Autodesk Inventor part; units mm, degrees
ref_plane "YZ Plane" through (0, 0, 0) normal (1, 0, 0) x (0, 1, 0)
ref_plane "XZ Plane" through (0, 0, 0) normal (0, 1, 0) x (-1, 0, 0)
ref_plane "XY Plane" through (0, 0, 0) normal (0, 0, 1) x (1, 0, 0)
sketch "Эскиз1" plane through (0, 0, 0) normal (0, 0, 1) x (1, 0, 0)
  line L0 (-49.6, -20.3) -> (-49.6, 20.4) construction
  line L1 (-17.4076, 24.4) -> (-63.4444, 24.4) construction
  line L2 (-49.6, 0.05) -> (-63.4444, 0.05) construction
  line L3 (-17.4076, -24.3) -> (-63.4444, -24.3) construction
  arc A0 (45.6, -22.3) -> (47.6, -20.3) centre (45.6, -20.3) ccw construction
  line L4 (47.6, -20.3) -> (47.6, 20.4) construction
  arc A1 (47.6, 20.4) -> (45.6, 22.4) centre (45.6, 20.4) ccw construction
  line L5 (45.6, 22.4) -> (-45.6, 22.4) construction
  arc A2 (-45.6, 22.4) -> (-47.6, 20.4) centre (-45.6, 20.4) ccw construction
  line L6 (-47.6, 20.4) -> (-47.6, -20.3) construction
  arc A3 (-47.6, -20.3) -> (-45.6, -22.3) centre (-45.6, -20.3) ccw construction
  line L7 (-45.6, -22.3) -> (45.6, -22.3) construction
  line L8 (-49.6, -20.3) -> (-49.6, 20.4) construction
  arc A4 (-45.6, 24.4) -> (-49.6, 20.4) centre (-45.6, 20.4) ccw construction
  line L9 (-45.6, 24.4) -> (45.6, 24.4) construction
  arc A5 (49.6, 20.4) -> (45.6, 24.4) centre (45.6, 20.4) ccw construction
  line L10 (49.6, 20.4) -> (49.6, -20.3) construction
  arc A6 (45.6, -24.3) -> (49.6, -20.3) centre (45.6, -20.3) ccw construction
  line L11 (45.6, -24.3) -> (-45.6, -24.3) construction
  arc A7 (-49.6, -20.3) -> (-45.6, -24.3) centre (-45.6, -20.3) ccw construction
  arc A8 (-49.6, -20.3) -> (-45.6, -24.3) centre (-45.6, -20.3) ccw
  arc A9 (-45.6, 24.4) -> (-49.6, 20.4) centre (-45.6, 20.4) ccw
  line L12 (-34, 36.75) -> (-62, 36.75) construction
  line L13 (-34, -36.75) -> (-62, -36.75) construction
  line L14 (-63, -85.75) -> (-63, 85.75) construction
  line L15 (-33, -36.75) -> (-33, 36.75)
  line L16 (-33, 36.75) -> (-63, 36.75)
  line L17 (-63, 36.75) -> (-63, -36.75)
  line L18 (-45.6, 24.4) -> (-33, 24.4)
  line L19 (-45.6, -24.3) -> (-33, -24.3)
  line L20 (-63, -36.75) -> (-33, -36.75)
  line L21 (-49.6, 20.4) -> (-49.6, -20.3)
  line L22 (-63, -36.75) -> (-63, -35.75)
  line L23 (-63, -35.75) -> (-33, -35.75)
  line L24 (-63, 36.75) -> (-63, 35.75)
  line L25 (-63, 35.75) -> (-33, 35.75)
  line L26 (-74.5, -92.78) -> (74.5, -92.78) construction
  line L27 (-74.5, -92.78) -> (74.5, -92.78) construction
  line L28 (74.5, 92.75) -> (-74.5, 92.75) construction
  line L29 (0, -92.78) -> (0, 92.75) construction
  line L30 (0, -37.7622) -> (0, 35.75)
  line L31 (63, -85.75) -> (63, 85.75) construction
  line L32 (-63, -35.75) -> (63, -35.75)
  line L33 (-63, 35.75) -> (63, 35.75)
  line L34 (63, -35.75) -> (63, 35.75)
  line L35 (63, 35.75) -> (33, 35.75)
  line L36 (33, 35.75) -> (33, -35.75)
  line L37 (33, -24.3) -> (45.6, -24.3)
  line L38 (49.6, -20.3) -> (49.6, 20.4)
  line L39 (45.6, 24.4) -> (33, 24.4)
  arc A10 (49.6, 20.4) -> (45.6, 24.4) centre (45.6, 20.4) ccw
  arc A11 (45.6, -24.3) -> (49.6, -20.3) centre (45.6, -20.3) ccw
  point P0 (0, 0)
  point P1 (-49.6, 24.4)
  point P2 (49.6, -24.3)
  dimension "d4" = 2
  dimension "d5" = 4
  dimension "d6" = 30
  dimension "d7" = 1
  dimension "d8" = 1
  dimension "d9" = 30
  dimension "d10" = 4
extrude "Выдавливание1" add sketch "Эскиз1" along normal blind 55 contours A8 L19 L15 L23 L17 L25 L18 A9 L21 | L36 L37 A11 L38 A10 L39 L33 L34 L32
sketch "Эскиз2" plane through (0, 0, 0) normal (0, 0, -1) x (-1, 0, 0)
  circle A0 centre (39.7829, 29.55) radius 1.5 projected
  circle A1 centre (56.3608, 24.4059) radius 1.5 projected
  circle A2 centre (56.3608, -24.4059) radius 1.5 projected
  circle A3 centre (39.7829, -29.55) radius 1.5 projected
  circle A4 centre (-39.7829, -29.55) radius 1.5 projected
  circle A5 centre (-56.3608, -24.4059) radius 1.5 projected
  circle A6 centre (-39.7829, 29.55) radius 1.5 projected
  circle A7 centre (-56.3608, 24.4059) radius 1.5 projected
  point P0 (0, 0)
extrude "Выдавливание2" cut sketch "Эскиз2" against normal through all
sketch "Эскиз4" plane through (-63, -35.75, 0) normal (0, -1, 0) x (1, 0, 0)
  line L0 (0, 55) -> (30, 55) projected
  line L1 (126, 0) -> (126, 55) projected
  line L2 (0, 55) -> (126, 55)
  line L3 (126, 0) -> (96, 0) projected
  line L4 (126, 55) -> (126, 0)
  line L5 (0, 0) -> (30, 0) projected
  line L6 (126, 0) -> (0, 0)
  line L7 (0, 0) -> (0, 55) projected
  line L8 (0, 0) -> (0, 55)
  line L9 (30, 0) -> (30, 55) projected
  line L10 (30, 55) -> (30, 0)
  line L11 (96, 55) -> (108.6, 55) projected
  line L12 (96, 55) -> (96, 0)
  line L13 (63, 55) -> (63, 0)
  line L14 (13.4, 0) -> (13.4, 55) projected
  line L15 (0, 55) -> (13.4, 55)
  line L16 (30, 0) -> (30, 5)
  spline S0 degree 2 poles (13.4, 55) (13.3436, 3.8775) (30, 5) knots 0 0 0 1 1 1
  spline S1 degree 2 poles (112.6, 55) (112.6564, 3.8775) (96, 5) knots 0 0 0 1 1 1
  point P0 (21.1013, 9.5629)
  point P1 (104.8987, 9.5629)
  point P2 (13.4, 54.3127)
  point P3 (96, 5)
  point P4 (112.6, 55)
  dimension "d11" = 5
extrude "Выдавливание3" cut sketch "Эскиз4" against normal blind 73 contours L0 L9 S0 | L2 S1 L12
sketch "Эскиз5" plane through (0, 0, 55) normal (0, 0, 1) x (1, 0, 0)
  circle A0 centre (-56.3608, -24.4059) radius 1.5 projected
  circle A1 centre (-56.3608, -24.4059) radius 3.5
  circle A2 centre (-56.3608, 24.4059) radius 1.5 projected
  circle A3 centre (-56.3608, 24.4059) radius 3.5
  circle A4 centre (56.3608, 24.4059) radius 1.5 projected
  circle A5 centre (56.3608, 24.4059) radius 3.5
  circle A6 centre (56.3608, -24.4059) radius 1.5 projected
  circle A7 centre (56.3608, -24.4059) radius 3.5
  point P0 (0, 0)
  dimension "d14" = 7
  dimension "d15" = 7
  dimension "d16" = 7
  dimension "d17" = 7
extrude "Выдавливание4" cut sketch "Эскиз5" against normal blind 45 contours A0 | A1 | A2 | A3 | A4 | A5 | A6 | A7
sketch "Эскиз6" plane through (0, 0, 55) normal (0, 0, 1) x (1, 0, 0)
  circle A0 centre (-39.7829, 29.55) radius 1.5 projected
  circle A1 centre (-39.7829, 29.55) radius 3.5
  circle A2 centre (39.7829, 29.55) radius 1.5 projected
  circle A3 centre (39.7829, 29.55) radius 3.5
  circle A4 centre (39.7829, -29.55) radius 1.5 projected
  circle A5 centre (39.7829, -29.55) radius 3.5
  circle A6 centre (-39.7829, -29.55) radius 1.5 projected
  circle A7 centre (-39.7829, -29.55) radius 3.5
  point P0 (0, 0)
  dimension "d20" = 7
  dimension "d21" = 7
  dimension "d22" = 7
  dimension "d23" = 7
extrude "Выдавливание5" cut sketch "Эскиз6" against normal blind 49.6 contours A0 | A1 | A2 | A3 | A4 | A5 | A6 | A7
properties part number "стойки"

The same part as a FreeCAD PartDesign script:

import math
import FreeCAD as App
import Part
import Sketcher

doc = App.newDocument("Part")
body = doc.addObject("PartDesign::Body", "Body")
body.AllowCompound = True

sketch1 = doc.addObject("Sketcher::SketchObject", "Sketch")
body.addObject(sketch1)
sketch1.AttachmentSupport = (doc.XY_Plane, [""])
sketch1.MapMode = "FlatFace"
sketch1.addGeometry([
    Part.ArcOfCircle(Part.Circle(App.Vector(-45.6, -20.3, 0), App.Vector(0, 0, 1), 4), math.radians(180), math.radians(270)),
    Part.LineSegment(App.Vector(-49.6, -20.3, 0), App.Vector(-49.6, 20.4, 0)),
    Part.ArcOfCircle(Part.Circle(App.Vector(-45.6, 20.4, 0), App.Vector(0, 0, 1), 4), math.radians(90), math.radians(180)),
    Part.LineSegment(App.Vector(-45.6, 24.4, 0), App.Vector(-33, 24.4, 0)),
    Part.LineSegment(App.Vector(-33, 24.4, 0), App.Vector(-33, 35.8, 0)),
    Part.LineSegment(App.Vector(-33, 35.8, 0), App.Vector(-63, 35.8, 0)),
    Part.LineSegment(App.Vector(-63, 35.8, 0), App.Vector(-63, -35.8, 0)),
    Part.LineSegment(App.Vector(-63, -35.8, 0), App.Vector(-33, -35.8, 0)),
    Part.LineSegment(App.Vector(-33, -35.8, 0), App.Vector(-33, -24.3, 0)),
    Part.LineSegment(App.Vector(-33, -24.3, 0), App.Vector(-45.6, -24.3, 0)),
    Part.LineSegment(App.Vector(33, -24.3, 0), App.Vector(33, -35.8, 0)),
    Part.LineSegment(App.Vector(33, -35.8, 0), App.Vector(63, -35.8, 0)),
    Part.LineSegment(App.Vector(63, -35.8, 0), App.Vector(63, 35.8, 0)),
    Part.LineSegment(App.Vector(63, 35.8, 0), App.Vector(33, 35.8, 0)),
    Part.LineSegment(App.Vector(33, 35.8, 0), App.Vector(33, 24.4, 0)),
    Part.LineSegment(App.Vector(33, 24.4, 0), App.Vector(45.6, 24.4, 0)),
    Part.ArcOfCircle(Part.Circle(App.Vector(45.6, 20.4, 0), App.Vector(0, 0, 1), 4), math.radians(0), math.radians(90)),
    Part.LineSegment(App.Vector(49.6, 20.4, 0), App.Vector(49.6, -20.3, 0)),
    Part.ArcOfCircle(Part.Circle(App.Vector(45.6, -20.3, 0), App.Vector(0, 0, 1), 4), math.radians(-90), math.radians(0)),
    Part.LineSegment(App.Vector(45.6, -24.3, 0), App.Vector(33, -24.3, 0)),
], False)
sketch1.addConstraint([
    Sketcher.Constraint("Tangent", 0, 1, 1, 1),
    Sketcher.Constraint("Tangent", 1, 2, 2, 2),
    Sketcher.Constraint("Tangent", 2, 1, 3, 1),
    Sketcher.Constraint("Coincident", 3, 2, 4, 1),
    Sketcher.Constraint("Coincident", 4, 2, 5, 1),
    Sketcher.Constraint("Coincident", 5, 2, 6, 1),
    Sketcher.Constraint("Coincident", 6, 2, 7, 1),
    Sketcher.Constraint("Coincident", 7, 2, 8, 1),
    Sketcher.Constraint("Coincident", 8, 2, 9, 1),
    Sketcher.Constraint("Tangent", 9, 2, 0, 2),
    Sketcher.Constraint("Coincident", 10, 2, 11, 1),
    Sketcher.Constraint("Coincident", 11, 2, 12, 1),
    Sketcher.Constraint("Coincident", 12, 2, 13, 1),
    Sketcher.Constraint("Coincident", 13, 2, 14, 1),
    Sketcher.Constraint("Coincident", 14, 2, 15, 1),
    Sketcher.Constraint("Tangent", 15, 2, 16, 2),
    Sketcher.Constraint("Tangent", 16, 1, 17, 1),
    Sketcher.Constraint("Tangent", 17, 2, 18, 2),
    Sketcher.Constraint("Tangent", 18, 1, 19, 1),
    Sketcher.Constraint("Coincident", 19, 2, 10, 1),
    Sketcher.Constraint("Vertical", 1),
    Sketcher.Constraint("Horizontal", 3),
    Sketcher.Constraint("Vertical", 4),
    Sketcher.Constraint("Horizontal", 5),
    Sketcher.Constraint("Vertical", 6),
    Sketcher.Constraint("Horizontal", 7),
    Sketcher.Constraint("Vertical", 8),
    Sketcher.Constraint("Horizontal", 9),
    Sketcher.Constraint("Vertical", 10),
    Sketcher.Constraint("Horizontal", 11),
    Sketcher.Constraint("Vertical", 12),
    Sketcher.Constraint("Horizontal", 13),
    Sketcher.Constraint("Vertical", 14),
    Sketcher.Constraint("Horizontal", 15),
    Sketcher.Constraint("Vertical", 17),
    Sketcher.Constraint("Horizontal", 19),
    Sketcher.Constraint("Equal", 0, 2),
    Sketcher.Constraint("Equal", 2, 16),
    Sketcher.Constraint("Equal", 16, 18),
    Sketcher.Constraint("Symmetric", 4, 2, 10, 2, -1, 1),
    Sketcher.Constraint("Symmetric", 6, 2, 12, 2, -1, 1),
    Sketcher.Constraint("Symmetric", 2, 3, 16, 3, -2),
    Sketcher.Constraint("Symmetric", 7, 2, 10, 2, -2),
    Sketcher.Constraint("Horizontal", 0, 3, 18, 3),
    Sketcher.Constraint("Vertical", 10, 2, 13, 2),
    Sketcher.Constraint("Radius", 0, 4.0),
    Sketcher.Constraint("DistanceX", 5, 2, 5, 1, 30.0),
    Sketcher.Constraint("DistanceX", 3, 1, 3, 2, 12.6),
    Sketcher.Constraint("DistanceY", 1, 1, 1, 2, 40.7),
    Sketcher.Constraint("DistanceY", 6, 2, 6, 1, 71.5),
    Sketcher.Constraint("DistanceX", 3, 2, -1, 1, 33.0),
    Sketcher.Constraint("DistanceY", 4, 1, 4, 2, 11.35),
])
pad1 = doc.addObject("PartDesign::Pad", "Pad")
body.addObject(pad1)
pad1.Profile = sketch1
pad1.Length = 55

sketch2 = doc.addObject("Sketcher::SketchObject", "Sketch001")
body.addObject(sketch2)
sketch2.AttachmentSupport = (doc.XY_Plane, [""])
sketch2.MapMode = "FlatFace"
sketch2.addGeometry([
    Part.Circle(App.Vector(-39.8, 29.6, 0), App.Vector(0, 0, 1), 1.5),
    Part.Circle(App.Vector(-56.4, 24.4, 0), App.Vector(0, 0, 1), 1.5),
    Part.Circle(App.Vector(-56.4, -24.4, 0), App.Vector(0, 0, 1), 1.5),
    Part.Circle(App.Vector(-39.8, -29.6, 0), App.Vector(0, 0, 1), 1.5),
    Part.Circle(App.Vector(39.8, -29.6, 0), App.Vector(0, 0, 1), 1.5),
    Part.Circle(App.Vector(56.4, -24.4, 0), App.Vector(0, 0, 1), 1.5),
    Part.Circle(App.Vector(39.8, 29.6, 0), App.Vector(0, 0, 1), 1.5),
    Part.Circle(App.Vector(56.4, 24.4, 0), App.Vector(0, 0, 1), 1.5),
], False)
sketch2.addConstraint([
    Sketcher.Constraint("Equal", 0, 1),
    Sketcher.Constraint("Equal", 1, 2),
    Sketcher.Constraint("Equal", 2, 3),
    Sketcher.Constraint("Equal", 3, 4),
    Sketcher.Constraint("Equal", 4, 5),
    Sketcher.Constraint("Equal", 5, 6),
    Sketcher.Constraint("Equal", 6, 7),
    Sketcher.Constraint("Symmetric", 0, 3, 4, 3, -1, 1),
    Sketcher.Constraint("Symmetric", 1, 3, 5, 3, -1, 1),
    Sketcher.Constraint("Symmetric", 3, 3, 6, 3, -1, 1),
    Sketcher.Constraint("Symmetric", 2, 3, 7, 3, -1, 1),
    Sketcher.Constraint("Symmetric", 3, 3, 4, 3, -2),
    Sketcher.Constraint("Symmetric", 2, 3, 5, 3, -2),
    Sketcher.Constraint("Diameter", 0, 3.0),
    Sketcher.Constraint("DistanceY", 3, 3, 0, 3, 59.1),
    Sketcher.Constraint("DistanceX", 0, 3, -1, 1, 39.783),
    Sketcher.Constraint("DistanceY", -1, 1, 1, 3, 24.406),
    Sketcher.Constraint("DistanceX", 1, 3, 0, 3, 16.578),
])
pocket1 = doc.addObject("PartDesign::Pocket", "Pocket")
body.addObject(pocket1)
pocket1.Profile = sketch2
pocket1.Type = "ThroughAll"
pocket1.Reversed = True

sketch3 = doc.addObject("Sketcher::SketchObject", "Sketch002")
body.addObject(sketch3)
sketch3.AttachmentSupport = (doc.XZ_Plane, [""])
sketch3.MapMode = "FlatFace"
sketch3.AttachmentOffset = App.Placement(App.Vector(0, 0, 35.75), App.Rotation())
sketch3.addGeometry([
    Part.LineSegment(App.Vector(-33, 55, 0), App.Vector(-49.6, 55, 0)),
    Part.BSplineCurve([App.Vector(-49.6, 55, 0), App.Vector(-49.6564, 3.8775, 0), App.Vector(-33, 5, 0)], [3, 3], [0, 1], False, 2, [1, 1, 1], False),
    Part.LineSegment(App.Vector(-33, 5, 0), App.Vector(-33, 55, 0)),
    Part.LineSegment(App.Vector(49.6, 55, 0), App.Vector(33, 55, 0)),
    Part.LineSegment(App.Vector(33, 55, 0), App.Vector(33, 5, 0)),
    Part.BSplineCurve([App.Vector(49.6, 55, 0), App.Vector(49.6564, 3.8775, 0), App.Vector(33, 5, 0)], [3, 3], [0, 1], False, 2, [1, 1, 1], False),
], False)
sketch3.addConstraint([
    Sketcher.Constraint("Block", 1),
    Sketcher.Constraint("Block", 5),
    Sketcher.Constraint("Coincident", 0, 2, 1, 1),
    Sketcher.Constraint("Coincident", 1, 2, 2, 1),
    Sketcher.Constraint("Coincident", 2, 2, 0, 1),
    Sketcher.Constraint("Coincident", 3, 2, 4, 1),
    Sketcher.Constraint("Coincident", 4, 2, 5, 2),
    Sketcher.Constraint("Coincident", 5, 1, 3, 1),
    Sketcher.Constraint("Horizontal", 0),
    Sketcher.Constraint("Vertical", 2),
    Sketcher.Constraint("Horizontal", 3),
    Sketcher.Constraint("Vertical", 4),
])
pocket2 = doc.addObject("PartDesign::Pocket", "Pocket001")
body.addObject(pocket2)
pocket2.Profile = sketch3
pocket2.Length = 73

sketch4 = doc.addObject("Sketcher::SketchObject", "Sketch003")
body.addObject(sketch4)
sketch4.AttachmentSupport = (doc.XY_Plane, [""])
sketch4.MapMode = "FlatFace"
sketch4.AttachmentOffset = App.Placement(App.Vector(0, 0, 55), App.Rotation())
sketch4.addGeometry([
    Part.Circle(App.Vector(-56.4, -24.4, 0), App.Vector(0, 0, 1), 3.5),
    Part.Circle(App.Vector(-56.4, 24.4, 0), App.Vector(0, 0, 1), 3.5),
    Part.Circle(App.Vector(56.4, 24.4, 0), App.Vector(0, 0, 1), 3.5),
    Part.Circle(App.Vector(56.4, -24.4, 0), App.Vector(0, 0, 1), 3.5),
], False)
sketch4.addConstraint([
    Sketcher.Constraint("Equal", 0, 1),
    Sketcher.Constraint("Equal", 1, 2),
    Sketcher.Constraint("Equal", 2, 3),
    Sketcher.Constraint("Symmetric", 0, 3, 2, 3, -1, 1),
    Sketcher.Constraint("Symmetric", 1, 3, 3, 3, -1, 1),
    Sketcher.Constraint("Symmetric", 1, 3, 2, 3, -2),
    Sketcher.Constraint("Diameter", 0, 7.0),
    Sketcher.Constraint("DistanceY", 0, 3, -1, 1, 24.406),
    Sketcher.Constraint("DistanceX", 0, 3, -1, 1, 56.3608),
])
pocket3 = doc.addObject("PartDesign::Pocket", "Pocket002")
body.addObject(pocket3)
pocket3.Profile = sketch4
pocket3.Length = 45

sketch5 = doc.addObject("Sketcher::SketchObject", "Sketch004")
body.addObject(sketch5)
sketch5.AttachmentSupport = (doc.XY_Plane, [""])
sketch5.MapMode = "FlatFace"
sketch5.AttachmentOffset = App.Placement(App.Vector(0, 0, 55), App.Rotation())
sketch5.addGeometry([
    Part.Circle(App.Vector(-39.8, 29.6, 0), App.Vector(0, 0, 1), 3.5),
    Part.Circle(App.Vector(39.8, 29.6, 0), App.Vector(0, 0, 1), 3.5),
    Part.Circle(App.Vector(39.8, -29.6, 0), App.Vector(0, 0, 1), 3.5),
    Part.Circle(App.Vector(-39.8, -29.6, 0), App.Vector(0, 0, 1), 3.5),
], False)
sketch5.addConstraint([
    Sketcher.Constraint("Equal", 0, 1),
    Sketcher.Constraint("Equal", 1, 2),
    Sketcher.Constraint("Equal", 2, 3),
    Sketcher.Constraint("Symmetric", 0, 3, 2, 3, -1, 1),
    Sketcher.Constraint("Symmetric", 1, 3, 3, 3, -1, 1),
    Sketcher.Constraint("Symmetric", 0, 3, 1, 3, -2),
    Sketcher.Constraint("Diameter", 0, 7.0),
    Sketcher.Constraint("DistanceY", 2, 3, 1, 3, 59.1),
    Sketcher.Constraint("DistanceX", 0, 3, -1, 1, 39.783),
])
pocket4 = doc.addObject("PartDesign::Pocket", "Pocket003")
body.addObject(pocket4)
pocket4.Profile = sketch5
pocket4.Length = 49.6

doc.recompute()
